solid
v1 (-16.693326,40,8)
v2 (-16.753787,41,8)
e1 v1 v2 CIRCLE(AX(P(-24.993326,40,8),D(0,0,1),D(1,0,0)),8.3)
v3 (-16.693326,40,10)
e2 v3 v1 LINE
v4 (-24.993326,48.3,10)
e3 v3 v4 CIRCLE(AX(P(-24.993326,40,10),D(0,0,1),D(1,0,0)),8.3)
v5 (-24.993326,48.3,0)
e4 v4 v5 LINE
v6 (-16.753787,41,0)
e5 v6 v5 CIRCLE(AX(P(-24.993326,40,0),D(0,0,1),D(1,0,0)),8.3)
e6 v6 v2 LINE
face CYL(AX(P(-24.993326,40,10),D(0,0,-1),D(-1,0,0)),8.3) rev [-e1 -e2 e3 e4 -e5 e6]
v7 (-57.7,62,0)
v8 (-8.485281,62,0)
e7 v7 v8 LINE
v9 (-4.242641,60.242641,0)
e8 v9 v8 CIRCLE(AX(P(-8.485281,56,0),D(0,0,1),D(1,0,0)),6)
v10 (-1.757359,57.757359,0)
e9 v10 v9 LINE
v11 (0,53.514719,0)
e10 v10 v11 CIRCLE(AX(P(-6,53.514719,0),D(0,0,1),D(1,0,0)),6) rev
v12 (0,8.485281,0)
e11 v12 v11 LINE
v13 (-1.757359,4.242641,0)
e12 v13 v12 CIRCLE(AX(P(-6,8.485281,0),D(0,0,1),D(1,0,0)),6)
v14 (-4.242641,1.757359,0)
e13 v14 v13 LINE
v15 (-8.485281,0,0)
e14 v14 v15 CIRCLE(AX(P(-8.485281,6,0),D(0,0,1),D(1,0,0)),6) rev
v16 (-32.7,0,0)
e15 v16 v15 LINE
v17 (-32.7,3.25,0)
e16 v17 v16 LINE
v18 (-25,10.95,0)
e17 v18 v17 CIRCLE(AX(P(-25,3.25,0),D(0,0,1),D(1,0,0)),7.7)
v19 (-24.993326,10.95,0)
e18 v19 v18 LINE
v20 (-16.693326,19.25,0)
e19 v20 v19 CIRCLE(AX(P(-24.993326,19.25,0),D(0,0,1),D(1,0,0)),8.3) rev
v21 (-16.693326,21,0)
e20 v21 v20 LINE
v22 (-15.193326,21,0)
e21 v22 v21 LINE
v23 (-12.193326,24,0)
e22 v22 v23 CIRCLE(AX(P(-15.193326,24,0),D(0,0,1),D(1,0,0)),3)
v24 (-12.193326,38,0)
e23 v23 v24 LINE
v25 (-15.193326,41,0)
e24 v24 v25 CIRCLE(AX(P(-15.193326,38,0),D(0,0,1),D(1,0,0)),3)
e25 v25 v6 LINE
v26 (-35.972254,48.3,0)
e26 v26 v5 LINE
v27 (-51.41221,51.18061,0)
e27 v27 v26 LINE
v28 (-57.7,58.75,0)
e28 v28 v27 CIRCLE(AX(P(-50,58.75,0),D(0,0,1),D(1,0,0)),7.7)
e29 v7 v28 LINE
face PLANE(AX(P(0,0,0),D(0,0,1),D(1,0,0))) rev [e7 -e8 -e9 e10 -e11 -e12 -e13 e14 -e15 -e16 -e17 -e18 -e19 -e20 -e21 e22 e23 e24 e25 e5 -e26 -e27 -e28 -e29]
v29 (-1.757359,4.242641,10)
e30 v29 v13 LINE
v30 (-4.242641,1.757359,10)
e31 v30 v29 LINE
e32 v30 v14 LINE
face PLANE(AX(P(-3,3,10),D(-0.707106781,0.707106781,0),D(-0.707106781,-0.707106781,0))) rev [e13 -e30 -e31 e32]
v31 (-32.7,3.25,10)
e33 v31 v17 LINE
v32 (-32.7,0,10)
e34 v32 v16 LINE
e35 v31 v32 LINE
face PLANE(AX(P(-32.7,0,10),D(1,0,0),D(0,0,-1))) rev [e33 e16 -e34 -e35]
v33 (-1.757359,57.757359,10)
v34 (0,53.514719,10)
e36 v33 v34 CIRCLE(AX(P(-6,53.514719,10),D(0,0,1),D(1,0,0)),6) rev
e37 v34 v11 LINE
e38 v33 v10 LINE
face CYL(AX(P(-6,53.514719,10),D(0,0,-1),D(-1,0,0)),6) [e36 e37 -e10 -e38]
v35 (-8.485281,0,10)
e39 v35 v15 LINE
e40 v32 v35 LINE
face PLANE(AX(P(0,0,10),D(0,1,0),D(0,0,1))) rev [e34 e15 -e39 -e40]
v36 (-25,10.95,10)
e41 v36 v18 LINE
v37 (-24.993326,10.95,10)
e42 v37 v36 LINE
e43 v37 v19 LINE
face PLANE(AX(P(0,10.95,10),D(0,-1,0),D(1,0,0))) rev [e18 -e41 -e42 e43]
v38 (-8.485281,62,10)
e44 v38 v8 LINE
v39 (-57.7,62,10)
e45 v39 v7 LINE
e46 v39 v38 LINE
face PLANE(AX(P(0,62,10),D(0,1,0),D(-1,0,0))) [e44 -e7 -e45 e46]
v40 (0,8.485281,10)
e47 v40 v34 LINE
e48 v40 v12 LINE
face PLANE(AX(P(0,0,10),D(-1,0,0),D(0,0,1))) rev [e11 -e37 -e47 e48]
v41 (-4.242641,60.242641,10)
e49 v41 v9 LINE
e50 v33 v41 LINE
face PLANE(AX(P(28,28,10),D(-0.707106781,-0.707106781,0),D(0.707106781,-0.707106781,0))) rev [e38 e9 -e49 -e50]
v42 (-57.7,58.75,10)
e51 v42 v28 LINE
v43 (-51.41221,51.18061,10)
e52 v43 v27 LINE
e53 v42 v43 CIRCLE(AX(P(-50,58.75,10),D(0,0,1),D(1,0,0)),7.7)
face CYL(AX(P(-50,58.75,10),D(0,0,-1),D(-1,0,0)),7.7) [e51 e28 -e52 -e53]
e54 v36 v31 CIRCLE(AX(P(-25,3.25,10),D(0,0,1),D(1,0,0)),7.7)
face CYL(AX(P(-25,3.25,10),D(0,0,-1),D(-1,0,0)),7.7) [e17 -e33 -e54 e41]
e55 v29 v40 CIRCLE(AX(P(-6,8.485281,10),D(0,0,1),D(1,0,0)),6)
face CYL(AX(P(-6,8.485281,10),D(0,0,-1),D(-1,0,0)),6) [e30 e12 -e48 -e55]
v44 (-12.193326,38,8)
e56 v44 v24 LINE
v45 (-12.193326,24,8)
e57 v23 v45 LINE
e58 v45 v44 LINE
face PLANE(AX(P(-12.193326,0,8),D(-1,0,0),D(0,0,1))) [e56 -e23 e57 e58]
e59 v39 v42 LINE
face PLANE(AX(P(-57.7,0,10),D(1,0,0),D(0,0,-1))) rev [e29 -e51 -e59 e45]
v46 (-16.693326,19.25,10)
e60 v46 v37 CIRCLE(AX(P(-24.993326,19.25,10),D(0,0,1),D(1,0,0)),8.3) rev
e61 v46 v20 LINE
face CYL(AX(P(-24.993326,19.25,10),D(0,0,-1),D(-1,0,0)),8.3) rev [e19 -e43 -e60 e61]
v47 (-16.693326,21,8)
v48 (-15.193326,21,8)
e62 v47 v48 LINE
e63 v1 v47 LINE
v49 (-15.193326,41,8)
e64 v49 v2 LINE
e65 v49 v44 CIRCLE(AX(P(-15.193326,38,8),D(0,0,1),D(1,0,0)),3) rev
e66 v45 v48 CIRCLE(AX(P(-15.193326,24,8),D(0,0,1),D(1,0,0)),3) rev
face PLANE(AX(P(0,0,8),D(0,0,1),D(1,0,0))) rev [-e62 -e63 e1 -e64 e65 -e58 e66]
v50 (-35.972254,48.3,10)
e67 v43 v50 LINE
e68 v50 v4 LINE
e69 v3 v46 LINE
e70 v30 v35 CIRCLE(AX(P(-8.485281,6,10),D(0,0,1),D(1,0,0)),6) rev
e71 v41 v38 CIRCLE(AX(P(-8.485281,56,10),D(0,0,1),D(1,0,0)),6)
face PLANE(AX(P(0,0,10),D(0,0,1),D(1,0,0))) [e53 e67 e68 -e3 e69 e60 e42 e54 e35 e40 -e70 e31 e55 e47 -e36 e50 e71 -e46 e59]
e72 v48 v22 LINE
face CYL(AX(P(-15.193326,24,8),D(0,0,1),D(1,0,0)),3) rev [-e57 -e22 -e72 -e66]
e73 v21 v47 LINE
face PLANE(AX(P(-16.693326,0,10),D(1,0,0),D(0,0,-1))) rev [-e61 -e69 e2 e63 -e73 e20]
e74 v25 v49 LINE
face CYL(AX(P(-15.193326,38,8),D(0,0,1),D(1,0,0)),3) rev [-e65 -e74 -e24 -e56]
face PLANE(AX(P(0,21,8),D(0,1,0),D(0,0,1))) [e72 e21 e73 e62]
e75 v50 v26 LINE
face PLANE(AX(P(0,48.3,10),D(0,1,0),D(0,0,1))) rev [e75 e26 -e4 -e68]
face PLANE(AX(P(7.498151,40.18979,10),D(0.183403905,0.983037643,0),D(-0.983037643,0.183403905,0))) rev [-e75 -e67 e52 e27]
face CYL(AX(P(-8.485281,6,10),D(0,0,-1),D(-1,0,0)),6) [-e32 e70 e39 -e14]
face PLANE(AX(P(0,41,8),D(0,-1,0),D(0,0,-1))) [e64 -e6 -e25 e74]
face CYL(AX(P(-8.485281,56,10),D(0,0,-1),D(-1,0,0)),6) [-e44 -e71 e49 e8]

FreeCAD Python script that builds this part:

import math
import FreeCAD as App
import Part
import Sketcher

V = App.Vector
Q = App.Units.Quantity


def edges_at(feature, points):
    """Names of the edges that pass closest to the given points."""
    edges = feature.Shape.Edges
    near = lambda p: min(range(len(edges)), key=lambda i: edges[i].distToShape(Part.Vertex(*p))[0])
    return sorted({f"Edge{near(p) + 1}" for p in points})


def add_polygon(sketch, points):
    """Adds a closed chain of lines whose ends are joined by coincident constraints."""
    first, n = sketch.GeometryCount, len(points)
    for a, b in zip(points, points[1:] + points[:1]):
        sketch.addGeometry(Part.LineSegment(App.Vector(*a, 0), App.Vector(*b, 0)), False)
    for i in range(n):
        sketch.addConstraint(Sketcher.Constraint("Coincident", first + i, 2, first + (i + 1) % n, 1))

doc = App.newDocument("Part")
body = doc.addObject("PartDesign::Body", "Body")

sketch1 = body.newObject("Sketcher::SketchObject", "Sketch")
sketch1.AttachmentSupport = (doc.getObject("XY_Plane"), [""])
sketch1.MapMode = "FlatFace"
sketch1.addGeometry(Part.LineSegment(V(0, 8.485, 0), V(0, 53.515, 0)), False)
sketch1.addGeometry(Part.ArcOfCircle(Part.Circle(V(-6, 53.515, 0), V(0, 0, 1), 6), math.radians(0), math.radians(45)), False)
sketch1.addGeometry(Part.LineSegment(V(-1.757, 57.757, 0), V(-4.243, 60.243, 0)), False)
sketch1.addGeometry(Part.ArcOfCircle(Part.Circle(V(-8.485, 56, 0), V(0, 0, 1), 6), math.radians(45), math.radians(90)), False)
sketch1.addGeometry(Part.LineSegment(V(-8.485, 62, 0), V(-57.7, 62, 0)), False)
sketch1.addGeometry(Part.LineSegment(V(-57.7, 62, 0), V(-57.7, 58.75, 0)), False)
sketch1.addGeometry(Part.ArcOfCircle(Part.Circle(V(-50, 58.75, 0), V(0, 0, 1), 7.7), math.radians(180), math.radians(259)), False)
sketch1.addGeometry(Part.LineSegment(V(-51.412, 51.181, 0), V(-35.972, 48.3, 0)), False)
sketch1.addGeometry(Part.LineSegment(V(-35.972, 48.3, 0), V(-24.993, 48.3, 0)), False)
sketch1.addGeometry(Part.ArcOfCircle(Part.Circle(V(-24.993, 40, 0), V(0, 0, 1), 8.3), math.radians(0), math.radians(90)), False)
sketch1.addGeometry(Part.LineSegment(V(-16.693, 40, 0), V(-16.693, 19.25, 0)), False)
sketch1.addGeometry(Part.ArcOfCircle(Part.Circle(V(-24.993, 19.25, 0), V(0, 0, 1), 8.3), math.radians(-90), math.radians(0)), False)
sketch1.addGeometry(Part.LineSegment(V(-24.993, 10.95, 0), V(-25, 10.95, 0)), False)
sketch1.addGeometry(Part.ArcOfCircle(Part.Circle(V(-25, 3.25, 0), V(0, 0, 1), 7.7), math.radians(90), math.radians(180)), False)
sketch1.addGeometry(Part.LineSegment(V(-32.7, 3.25, 0), V(-32.7, 0, 0)), False)
sketch1.addGeometry(Part.LineSegment(V(-32.7, 0, 0), V(-8.485, 0, 0)), False)
sketch1.addGeometry(Part.ArcOfCircle(Part.Circle(V(-8.485, 6, 0), V(0, 0, 1), 6), math.radians(-90), math.radians(-45)), False)
sketch1.addGeometry(Part.LineSegment(V(-4.243, 1.757, 0), V(-1.757, 4.243, 0)), False)
sketch1.addGeometry(Part.ArcOfCircle(Part.Circle(V(-6, 8.485, 0), V(0, 0, 1), 6), math.radians(-45), math.radians(0)), False)
sketch1.addConstraint(Sketcher.Constraint("Tangent", 0, 2, 1, 1))
sketch1.addConstraint(Sketcher.Constraint("Tangent", 1, 2, 2, 1))
sketch1.addConstraint(Sketcher.Constraint("Tangent", 2, 2, 3, 1))
sketch1.addConstraint(Sketcher.Constraint("Tangent", 3, 2, 4, 1))
sketch1.addConstraint(Sketcher.Constraint("Coincident", 4, 2, 5, 1))
sketch1.addConstraint(Sketcher.Constraint("Tangent", 5, 2, 6, 1))
sketch1.addConstraint(Sketcher.Constraint("Tangent", 6, 2, 7, 1))
sketch1.addConstraint(Sketcher.Constraint("Coincident", 7, 2, 8, 1))
sketch1.addConstraint(Sketcher.Constraint("Tangent", 8, 2, 9, 2))
sketch1.addConstraint(Sketcher.Constraint("Tangent", 9, 1, 10, 1))
sketch1.addConstraint(Sketcher.Constraint("Tangent", 10, 2, 11, 2))
sketch1.addConstraint(Sketcher.Constraint("Tangent", 11, 1, 12, 1))
sketch1.addConstraint(Sketcher.Constraint("Coincident", 12, 2, 13, 1))
sketch1.addConstraint(Sketcher.Constraint("Tangent", 13, 2, 14, 1))
sketch1.addConstraint(Sketcher.Constraint("Coincident", 14, 2, 15, 1))
sketch1.addConstraint(Sketcher.Constraint("Tangent", 15, 2, 16, 1))
sketch1.addConstraint(Sketcher.Constraint("Tangent", 16, 2, 17, 1))
sketch1.addConstraint(Sketcher.Constraint("Tangent", 17, 2, 18, 1))
sketch1.addConstraint(Sketcher.Constraint("Tangent", 18, 2, 0, 1))
sketch1.addConstraint(Sketcher.Constraint("Vertical", 0))
sketch1.addConstraint(Sketcher.Constraint("Horizontal", 4))
sketch1.addConstraint(Sketcher.Constraint("Vertical", 5))
sketch1.addConstraint(Sketcher.Constraint("Horizontal", 8))
sketch1.addConstraint(Sketcher.Constraint("Vertical", 10))
sketch1.addConstraint(Sketcher.Constraint("Vertical", 14))
sketch1.addConstraint(Sketcher.Constraint("Horizontal", 15))
sketch1.addConstraint(Sketcher.Constraint("Equal", 1, 3))
sketch1.addConstraint(Sketcher.Constraint("Equal", 9, 11))
sketch1.addConstraint(Sketcher.Constraint("Equal", 6, 13))
sketch1.addConstraint(Sketcher.Constraint("Equal", 3, 16))
sketch1.addConstraint(Sketcher.Constraint("Equal", 16, 18))
sketch1.addConstraint(Sketcher.Constraint("PointOnObject", 0, 2, -2))
sketch1.addConstraint(Sketcher.Constraint("PointOnObject", 14, 2, -1))
sketch1.addConstraint(Sketcher.Constraint("Perpendicular", 2, 17))
sketch1.addConstraint(Sketcher.Constraint("Vertical", 3, 3, 16, 3))
sketch1.addConstraint(Sketcher.Constraint("Vertical", 8, 2, 11, 1))
sketch1.addConstraint(Sketcher.Constraint("Vertical", 13, 3, 12, 2))
sketch1.addConstraint(Sketcher.Constraint("Vertical", 2, 2, 16, 2))
sketch1.addConstraint(Sketcher.Constraint("Equal", 5, 14))
sketch1.addConstraint(Sketcher.Constraint("Radius", 1, Q("6 mm")))
sketch1.addConstraint(Sketcher.Constraint("Radius", 6, Q("7.7 mm")))
sketch1.addConstraint(Sketcher.Constraint("Radius", 9, Q("8.3 mm")))
sketch1.addConstraint(Sketcher.Constraint("DistanceY", -1, 1, 3, 3, Q("56 mm")))
sketch1.addConstraint(Sketcher.Constraint("DistanceX", 6, 3, -1, 1, Q("50 mm")))
sketch1.addConstraint(Sketcher.Constraint("DistanceY", -1, 1, 9, 3, Q("40 mm")))
sketch1.addConstraint(Sketcher.Constraint("DistanceX", 13, 3, -1, 1, Q("25 mm")))
sketch1.addConstraint(Sketcher.Constraint("DistanceY", 5, 2, 5, 1, Q("3.25 mm")))
sketch1.addConstraint(Sketcher.Constraint("DistanceX", 4, 2, 4, 1, Q("49.214719 mm")))
sketch1.addConstraint(Sketcher.Constraint("DistanceX", 8, 1, 8, 2, Q("10.978928 mm")))
sketch1.addConstraint(Sketcher.Constraint("DistanceX", 12, 2, 12, 1, Q("0.006674 mm")))
pad1 = body.newObject("PartDesign::Pad", "Pad")
pad1.Profile = sketch1
pad1.Length = 10

sketch2 = body.newObject("Sketcher::SketchObject", "Sketch001")
sketch2.AttachmentSupport = (doc.getObject("XY_Plane"), [""])
sketch2.MapMode = "FlatFace"
add_polygon(sketch2, [(-12, 41), (-18, 41), (-18, 21), (-12, 21)])
sketch2.addConstraint(Sketcher.Constraint("Horizontal", 0))
sketch2.addConstraint(Sketcher.Constraint("Vertical", 1))
sketch2.addConstraint(Sketcher.Constraint("Horizontal", 2))
sketch2.addConstraint(Sketcher.Constraint("Vertical", 3))
sketch2.addConstraint(Sketcher.Constraint("DistanceX", 0, 2, 0, 1, Q("6 mm")))
sketch2.addConstraint(Sketcher.Constraint("DistanceY", 1, 2, 1, 1, Q("20 mm")))
sketch2.addConstraint(Sketcher.Constraint("DistanceY", -1, 1, 0, 2, Q("41 mm")))
sketch2.addConstraint(Sketcher.Constraint("DistanceX", 0, 2, -1, 1, Q("18.193326 mm")))
pocket1 = body.newObject("PartDesign::Pocket", "Pocket")
pocket1.Profile = sketch2
pocket1.Length = 8
pocket1.Reversed = True
doc.recompute()

fillet = body.newObject("PartDesign::Fillet", "Fillet")
fillet.Base = (pocket1, edges_at(pocket1, [(-12.193, 21, 4), (-12.193, 41, 4)]))
fillet.Radius = 3

doc.recompute()
